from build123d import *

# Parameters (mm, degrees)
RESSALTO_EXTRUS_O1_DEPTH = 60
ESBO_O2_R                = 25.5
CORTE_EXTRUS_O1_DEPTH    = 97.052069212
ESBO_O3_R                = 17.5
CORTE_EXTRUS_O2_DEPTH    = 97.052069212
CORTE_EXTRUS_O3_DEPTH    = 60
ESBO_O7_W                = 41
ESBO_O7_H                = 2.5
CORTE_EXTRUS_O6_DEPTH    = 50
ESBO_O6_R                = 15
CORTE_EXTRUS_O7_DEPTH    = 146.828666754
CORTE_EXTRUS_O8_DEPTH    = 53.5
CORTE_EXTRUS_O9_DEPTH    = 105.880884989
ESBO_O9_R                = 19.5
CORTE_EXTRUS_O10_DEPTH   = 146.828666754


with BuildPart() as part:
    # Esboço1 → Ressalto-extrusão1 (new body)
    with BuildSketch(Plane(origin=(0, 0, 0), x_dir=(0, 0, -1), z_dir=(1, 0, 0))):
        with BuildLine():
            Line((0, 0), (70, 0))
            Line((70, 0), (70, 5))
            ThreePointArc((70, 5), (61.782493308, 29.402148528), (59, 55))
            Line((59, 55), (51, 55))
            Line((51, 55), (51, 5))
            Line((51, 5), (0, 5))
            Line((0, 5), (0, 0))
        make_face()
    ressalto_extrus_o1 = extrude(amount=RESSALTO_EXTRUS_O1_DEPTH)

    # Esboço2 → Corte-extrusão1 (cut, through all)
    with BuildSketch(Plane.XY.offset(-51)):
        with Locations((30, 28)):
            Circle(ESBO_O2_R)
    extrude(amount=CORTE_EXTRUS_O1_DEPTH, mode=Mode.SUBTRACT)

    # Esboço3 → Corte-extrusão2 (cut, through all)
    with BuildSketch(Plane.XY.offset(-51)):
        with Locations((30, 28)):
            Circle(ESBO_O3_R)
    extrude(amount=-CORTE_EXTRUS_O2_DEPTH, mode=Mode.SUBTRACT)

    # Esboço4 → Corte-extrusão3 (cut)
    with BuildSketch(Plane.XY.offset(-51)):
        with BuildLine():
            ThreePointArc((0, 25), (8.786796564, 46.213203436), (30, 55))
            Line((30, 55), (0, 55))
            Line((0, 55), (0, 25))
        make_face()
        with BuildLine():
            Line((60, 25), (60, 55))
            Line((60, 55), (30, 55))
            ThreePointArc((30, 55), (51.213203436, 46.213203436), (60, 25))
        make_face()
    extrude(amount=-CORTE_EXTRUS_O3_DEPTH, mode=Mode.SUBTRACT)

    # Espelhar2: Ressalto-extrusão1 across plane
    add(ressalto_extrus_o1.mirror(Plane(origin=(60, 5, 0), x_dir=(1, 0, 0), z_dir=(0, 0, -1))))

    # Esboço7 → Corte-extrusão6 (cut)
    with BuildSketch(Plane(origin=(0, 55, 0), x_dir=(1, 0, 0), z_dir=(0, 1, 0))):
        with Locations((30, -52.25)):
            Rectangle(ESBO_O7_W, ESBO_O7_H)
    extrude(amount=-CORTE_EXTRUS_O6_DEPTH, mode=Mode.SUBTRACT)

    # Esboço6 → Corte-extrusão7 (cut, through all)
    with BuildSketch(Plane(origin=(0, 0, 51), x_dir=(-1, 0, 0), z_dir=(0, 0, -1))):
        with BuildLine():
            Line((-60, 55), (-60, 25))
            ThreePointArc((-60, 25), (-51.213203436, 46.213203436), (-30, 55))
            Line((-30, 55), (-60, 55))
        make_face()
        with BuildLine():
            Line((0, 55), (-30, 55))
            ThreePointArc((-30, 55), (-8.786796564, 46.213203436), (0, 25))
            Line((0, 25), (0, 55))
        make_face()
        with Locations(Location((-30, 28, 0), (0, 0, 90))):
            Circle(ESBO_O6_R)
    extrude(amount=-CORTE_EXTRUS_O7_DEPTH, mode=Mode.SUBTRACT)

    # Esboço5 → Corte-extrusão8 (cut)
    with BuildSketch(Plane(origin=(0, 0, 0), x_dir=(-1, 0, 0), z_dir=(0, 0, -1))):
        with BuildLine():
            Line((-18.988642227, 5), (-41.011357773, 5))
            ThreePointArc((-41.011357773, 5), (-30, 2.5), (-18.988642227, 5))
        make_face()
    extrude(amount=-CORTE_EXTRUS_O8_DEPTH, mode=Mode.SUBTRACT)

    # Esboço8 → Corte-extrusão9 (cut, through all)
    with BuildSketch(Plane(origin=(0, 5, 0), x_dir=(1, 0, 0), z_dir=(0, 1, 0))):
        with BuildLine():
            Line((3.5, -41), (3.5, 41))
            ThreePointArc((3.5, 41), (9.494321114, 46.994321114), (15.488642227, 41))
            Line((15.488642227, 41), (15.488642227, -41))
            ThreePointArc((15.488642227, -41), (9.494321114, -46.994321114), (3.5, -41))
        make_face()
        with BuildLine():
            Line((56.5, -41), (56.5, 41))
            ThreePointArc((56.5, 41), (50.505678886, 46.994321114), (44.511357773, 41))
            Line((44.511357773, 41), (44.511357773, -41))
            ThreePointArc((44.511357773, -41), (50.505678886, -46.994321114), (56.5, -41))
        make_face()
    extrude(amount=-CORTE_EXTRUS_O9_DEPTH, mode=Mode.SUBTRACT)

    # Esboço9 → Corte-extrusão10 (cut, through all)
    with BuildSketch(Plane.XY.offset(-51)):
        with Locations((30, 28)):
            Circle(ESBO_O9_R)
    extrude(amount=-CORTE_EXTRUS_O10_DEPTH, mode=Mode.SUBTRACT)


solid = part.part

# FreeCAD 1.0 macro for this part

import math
import FreeCAD as App
import Part
import Sketcher

V = App.Vector
Q = App.Units.Quantity

doc = App.newDocument("Part")
body = doc.addObject("PartDesign::Body", "Body")

# Sketch on YZ plane
sketch1 = doc.addObject("Sketcher::SketchObject", "Sketch")
body.addObject(sketch1)
sketch1.AttachmentSupport = (doc.YZ_Plane, [""])
sketch1.MapMode = "FlatFace"
sketch1.addGeometry(Part.LineSegment(V(0, 0, 0), V(0, -70, 0)), False)
sketch1.addGeometry(Part.LineSegment(V(0, -70, 0), V(5, -70, 0)), False)
sketch1.addGeometry(Part.ArcOfCircle(Part.Circle(V(55, -178.136364, 0), V(0, 0, 1), 119.136364), math.radians(90), math.radians(114.814837)), False)
sketch1.addGeometry(Part.LineSegment(V(55, -59, 0), V(55, -51, 0)), False)
sketch1.addGeometry(Part.LineSegment(V(55, -51, 0), V(5, -51, 0)), False)
sketch1.addGeometry(Part.LineSegment(V(5, -51, 0), V(5, 0, 0)), False)
sketch1.addGeometry(Part.LineSegment(V(5, 0, 0), V(0, 0, 0)), False)
sketch1.addConstraint(Sketcher.Constraint("Coincident", 0, 2, 1, 1))
sketch1.addConstraint(Sketcher.Constraint("Coincident", 1, 2, 2, 2))
sketch1.addConstraint(Sketcher.Constraint("Coincident", 2, 1, 3, 1))
sketch1.addConstraint(Sketcher.Constraint("Coincident", 3, 2, 4, 1))
sketch1.addConstraint(Sketcher.Constraint("Coincident", 4, 2, 5, 1))
sketch1.addConstraint(Sketcher.Constraint("Coincident", 5, 2, 6, 1))
sketch1.addConstraint(Sketcher.Constraint("Coincident", 6, 2, 0, 1))
sketch1.addConstraint(Sketcher.Constraint("Vertical", 0))
sketch1.addConstraint(Sketcher.Constraint("Horizontal", 1))
sketch1.addConstraint(Sketcher.Constraint("Vertical", 3))
sketch1.addConstraint(Sketcher.Constraint("Horizontal", 4))
sketch1.addConstraint(Sketcher.Constraint("Vertical", 5))
sketch1.addConstraint(Sketcher.Constraint("Horizontal", 6))
sketch1.addConstraint(Sketcher.Constraint("Coincident", 6, 2, -1, 1))
sketch1.addConstraint(Sketcher.Constraint("Vertical", 1, 2, 4, 2))
sketch1.addConstraint(Sketcher.Constraint("DistanceX", 1, 1, 1, 2, Q("5 mm")))
sketch1.addConstraint(Sketcher.Constraint("DistanceX", 4, 2, 4, 1, Q("50 mm")))
sketch1.addConstraint(Sketcher.Constraint("DistanceY", 0, 2, 0, 1, Q("70 mm")))
sketch1.addConstraint(Sketcher.Constraint("DistanceY", 3, 1, 3, 2, Q("8 mm")))
sketch1.addConstraint(Sketcher.Constraint("DistanceY", 5, 1, 5, 2, Q("51 mm")))
sketch1.addConstraint(Sketcher.Constraint("DistanceX", -1, 1, 2, 3, Q("55 mm")))
pad1 = doc.addObject("PartDesign::Pad", "Pad")
body.addObject(pad1)
pad1.Profile = sketch1
pad1.Length = 60

# Sketch on XY plane
sketch2 = doc.addObject("Sketcher::SketchObject", "Sketch001")
body.addObject(sketch2)
sketch2.AttachmentSupport = (doc.XY_Plane, [""])
sketch2.MapMode = "FlatFace"
sketch2.AttachmentOffset = App.Placement(V(0, 0, -51), App.Rotation())
sketch2.addGeometry(Part.Circle(V(30, 28, 0), V(0, 0, 1), 25.5), False)
sketch2.addConstraint(Sketcher.Constraint("Diameter", 0, Q("51 mm")))
sketch2.addConstraint(Sketcher.Constraint("DistanceX", -1, 1, 0, 3, Q("30 mm")))
sketch2.addConstraint(Sketcher.Constraint("DistanceY", -1, 1, 0, 3, Q("28 mm")))
pocket1 = doc.addObject("PartDesign::Pocket", "Pocket")
body.addObject(pocket1)
pocket1.Profile = sketch2
pocket1.Type = "ThroughAll"
pocket1.Reversed = True

# Sketch on XY plane
sketch3 = doc.addObject("Sketcher::SketchObject", "Sketch002")
body.addObject(sketch3)
sketch3.AttachmentSupport = (doc.XY_Plane, [""])
sketch3.MapMode = "FlatFace"
sketch3.AttachmentOffset = App.Placement(V(0, 0, -51), App.Rotation())
sketch3.addGeometry(Part.Circle(V(30, 28, 0), V(0, 0, 1), 17.5), False)
sketch3.addConstraint(Sketcher.Constraint("Diameter", 0, Q("35 mm")))
sketch3.addConstraint(Sketcher.Constraint("DistanceX", -1, 1, 0, 3, Q("30 mm")))
sketch3.addConstraint(Sketcher.Constraint("DistanceY", -1, 1, 0, 3, Q("28 mm")))
pocket2 = doc.addObject("PartDesign::Pocket", "Pocket001")
body.addObject(pocket2)
pocket2.Profile = sketch3
pocket2.Type = "ThroughAll"

# Sketch on XY plane
sketch4 = doc.addObject("Sketcher::SketchObject", "Sketch003")
body.addObject(sketch4)
sketch4.AttachmentSupport = (doc.XY_Plane, [""])
sketch4.MapMode = "FlatFace"
sketch4.AttachmentOffset = App.Placement(V(0, 0, -51), App.Rotation())
sketch4.addGeometry(Part.ArcOfCircle(Part.Circle(V(30, 25, 0), V(0, 0, 1), 30), math.radians(90), math.radians(180)), False)
sketch4.addGeometry(Part.LineSegment(V(30, 55, 0), V(0, 55, 0)), False)
sketch4.addGeometry(Part.LineSegment(V(0, 55, 0), V(0, 25, 0)), False)
sketch4.addGeometry(Part.LineSegment(V(60, 25, 0), V(60, 55, 0)), False)
sketch4.addGeometry(Part.LineSegment(V(60, 55, 0), V(30, 55, 0)), False)
sketch4.addGeometry(Part.ArcOfCircle(Part.Circle(V(30, 25, 0), V(0, 0, 1), 30), math.radians(0), math.radians(90)), False)
sketch4.addConstraint(Sketcher.Constraint("Tangent", 0, 1, 1, 1))
sketch4.addConstraint(Sketcher.Constraint("Coincident", 1, 2, 2, 1))
sketch4.addConstraint(Sketcher.Constraint("Tangent", 2, 2, 0, 2))
sketch4.addConstraint(Sketcher.Constraint("Coincident", 3, 2, 4, 1))
sketch4.addConstraint(Sketcher.Constraint("Tangent", 4, 2, 5, 2))
sketch4.addConstraint(Sketcher.Constraint("Tangent", 5, 1, 3, 1))
sketch4.addConstraint(Sketcher.Constraint("Horizontal", 1))
sketch4.addConstraint(Sketcher.Constraint("Vertical", 2))
sketch4.addConstraint(Sketcher.Constraint("Vertical", 3))
sketch4.addConstraint(Sketcher.Constraint("Horizontal", 4))
sketch4.addConstraint(Sketcher.Constraint("Coincident", 5, 3, 0, 3))
sketch4.addConstraint(Sketcher.Constraint("Equal", 0, 5))
sketch4.addConstraint(Sketcher.Constraint("PointOnObject", 1, 2, -2))
sketch4.addConstraint(Sketcher.Constraint("Radius", 0, Q("30 mm")))
sketch4.addConstraint(Sketcher.Constraint("DistanceY", -1, 1, 0, 3, Q("25 mm")))
pocket3 = doc.addObject("PartDesign::Pocket", "Pocket002")
body.addObject(pocket3)
pocket3.Profile = sketch4
pocket3.Length = 60
doc.recompute()

mirrored = doc.addObject("PartDesign::Mirrored", "Mirrored")
body.addObject(mirrored)
mirrored.Originals = [pad1]
mirrored.MirrorPlane = (doc.XY_Plane, [""])
body.Tip = mirrored

# Sketch on XZ plane
sketch5 = doc.addObject("Sketcher::SketchObject", "Sketch004")
body.addObject(sketch5)
sketch5.AttachmentSupport = (doc.XZ_Plane, [""])
sketch5.MapMode = "FlatFace"
sketch5.AttachmentOffset = App.Placement(V(0, 0, -55), App.Rotation())
sketch5.addGeometry(Part.LineSegment(V(9.5, 51, 0), V(9.5, 53.5, 0)), False)
sketch5.addGeometry(Part.LineSegment(V(9.5, 53.5, 0), V(50.5, 53.5, 0)), False)
sketch5.addGeometry(Part.LineSegment(V(50.5, 53.5, 0), V(50.5, 51, 0)), False)
sketch5.addGeometry(Part.LineSegment(V(50.5, 51, 0), V(9.5, 51, 0)), False)
sketch5.addConstraint(Sketcher.Constraint("Coincident", 0, 2, 1, 1))
sketch5.addConstraint(Sketcher.Constraint("Coincident", 1, 2, 2, 1))
sketch5.addConstraint(Sketcher.Constraint("Coincident", 2, 2, 3, 1))
sketch5.addConstraint(Sketcher.Constraint("Coincident", 3, 2, 0, 1))
sketch5.addConstraint(Sketcher.Constraint("Vertical", 0))
sketch5.addConstraint(Sketcher.Constraint("Horizontal", 1))
sketch5.addConstraint(Sketcher.Constraint("Vertical", 2))
sketch5.addConstraint(Sketcher.Constraint("Horizontal", 3))
sketch5.addConstraint(Sketcher.Constraint("DistanceX", 1, 1, 1, 2, Q("41 mm")))
sketch5.addConstraint(Sketcher.Constraint("DistanceY", 0, 1, 0, 2, Q("2.5 mm")))
sketch5.addConstraint(Sketcher.Constraint("DistanceY", -1, 1, 2, 2, Q("51 mm")))
sketch5.addConstraint(Sketcher.Constraint("DistanceX", -1, 1, 0, 2, Q("9.5 mm")))
pocket4 = doc.addObject("PartDesign::Pocket", "Pocket003")
body.addObject(pocket4)
pocket4.Profile = sketch5
pocket4.Length = 50
pocket4.Reversed = True

# Sketch on XY plane
sketch6 = doc.addObject("Sketcher::SketchObject", "Sketch005")
body.addObject(sketch6)
sketch6.AttachmentSupport = (doc.XY_Plane, [""])
sketch6.MapMode = "FlatFace"
sketch6.AttachmentOffset = App.Placement(V(0, 0, 51), App.Rotation())
sketch6.addGeometry(Part.LineSegment(V(60, 55, 0), V(60, 25, 0)), False)
sketch6.addGeometry(Part.ArcOfCircle(Part.Circle(V(30, 25, 0), V(0, 0, 1), 30), math.radians(0), math.radians(90)), False)
sketch6.addGeometry(Part.LineSegment(V(30, 55, 0), V(60, 55, 0)), False)
sketch6.addGeometry(Part.LineSegment(V(0, 55, 0), V(30, 55, 0)), False)
sketch6.addGeometry(Part.ArcOfCircle(Part.Circle(V(30, 25, 0), V(0, 0, 1), 30), math.radians(90), math.radians(180)), False)
sketch6.addGeometry(Part.LineSegment(V(0, 25, 0), V(0, 55, 0)), False)
sketch6.addGeometry(Part.Circle(V(30, 28, 0), V(0, 0, 1), 15), False)
sketch6.addConstraint(Sketcher.Constraint("Tangent", 0, 2, 1, 1))
sketch6.addConstraint(Sketcher.Constraint("Tangent", 1, 2, 2, 1))
sketch6.addConstraint(Sketcher.Constraint("Coincident", 2, 2, 0, 1))
sketch6.addConstraint(Sketcher.Constraint("Tangent", 3, 2, 4, 1))
sketch6.addConstraint(Sketcher.Constraint("Tangent", 4, 2, 5, 1))
sketch6.addConstraint(Sketcher.Constraint("Coincident", 5, 2, 3, 1))
sketch6.addConstraint(Sketcher.Constraint("Vertical", 0))
sketch6.addConstraint(Sketcher.Constraint("Horizontal", 2))
sketch6.addConstraint(Sketcher.Constraint("Horizontal", 3))
sketch6.addConstraint(Sketcher.Constraint("Vertical", 5))
sketch6.addConstraint(Sketcher.Constraint("Coincident", 4, 3, 1, 3))
sketch6.addConstraint(Sketcher.Constraint("Equal", 1, 4))
sketch6.addConstraint(Sketcher.Constraint("PointOnObject", 4, 2, -2))
sketch6.addConstraint(Sketcher.Constraint("Vertical", 4, 3, 6, 3))
sketch6.addConstraint(Sketcher.Constraint("Diameter", 6, Q("30 mm")))
sketch6.addConstraint(Sketcher.Constraint("Radius", 1, Q("30 mm")))
sketch6.addConstraint(Sketcher.Constraint("DistanceY", -1, 1, 1, 3, Q("25 mm")))
sketch6.addConstraint(Sketcher.Constraint("DistanceY", -1, 1, 6, 3, Q("28 mm")))
pocket5 = doc.addObject("PartDesign::Pocket", "Pocket004")
body.addObject(pocket5)
pocket5.Profile = sketch6
pocket5.Type = "ThroughAll"
pocket5.Reversed = True

# Sketch on XY plane
sketch7 = doc.addObject("Sketcher::SketchObject", "Sketch006")
body.addObject(sketch7)
sketch7.AttachmentSupport = (doc.XY_Plane, [""])
sketch7.MapMode = "FlatFace"
sketch7.addGeometry(Part.LineSegment(V(18.988642, 5, 0), V(41.011358, 5, 0)), False)
sketch7.addGeometry(Part.ArcOfCircle(Part.Circle(V(30, 28, 0), V(0, 0, 1), 25.5), math.radians(-115.582987), math.radians(-64.417013)), False)
sketch7.addConstraint(Sketcher.Constraint("Coincident", 0, 1, 1, 1))
sketch7.addConstraint(Sketcher.Constraint("Coincident", 1, 2, 0, 2))
sketch7.addConstraint(Sketcher.Constraint("Horizontal", 0))
sketch7.addConstraint(Sketcher.Constraint("Radius", 1, Q("25.5 mm")))
sketch7.addConstraint(Sketcher.Constraint("DistanceX", -1, 1, 1, 3, Q("30 mm")))
sketch7.addConstraint(Sketcher.Constraint("DistanceY", -1, 1, 1, 3, Q("28 mm")))
sketch7.addConstraint(Sketcher.Constraint("DistanceY", -1, 1, 0, 1, Q("5 mm")))
pocket6 = doc.addObject("PartDesign::Pocket", "Pocket005")
body.addObject(pocket6)
pocket6.Profile = sketch7
pocket6.Length = 53.5
pocket6.Reversed = True

# Sketch on XZ plane
sketch8 = doc.addObject("Sketcher::SketchObject", "Sketch007")
body.addObject(sketch8)
sketch8.AttachmentSupport = (doc.XZ_Plane, [""])
sketch8.MapMode = "FlatFace"
sketch8.AttachmentOffset = App.Placement(V(0, 0, -5), App.Rotation())
sketch8.addGeometry(Part.LineSegment(V(3.5, -41, 0), V(3.5, 41, 0)), False)
sketch8.addGeometry(Part.ArcOfCircle(Part.Circle(V(9.494321, 41, 0), V(0, 0, 1), 5.994321), math.radians(0), math.radians(180)), False)
sketch8.addGeometry(Part.LineSegment(V(15.488642, 41, 0), V(15.488642, -41, 0)), False)
sketch8.addGeometry(Part.ArcOfCircle(Part.Circle(V(9.494321, -41, 0), V(0, 0, 1), 5.994321), math.radians(180), math.radians(360)), False)
sketch8.addGeometry(Part.LineSegment(V(56.5, 41, 0), V(56.5, -41, 0)), False)
sketch8.addGeometry(Part.ArcOfCircle(Part.Circle(V(50.505679, -41, 0), V(0, 0, 1), 5.994321), math.radians(180), math.radians(360)), False)
sketch8.addGeometry(Part.LineSegment(V(44.511358, -41, 0), V(44.511358, 41, 0)), False)
sketch8.addGeometry(Part.ArcOfCircle(Part.Circle(V(50.505679, 41, 0), V(0, 0, 1), 5.994321), math.radians(0), math.radians(180)), False)
sketch8.addConstraint(Sketcher.Constraint("Tangent", 0, 2, 1, 2))
sketch8.addConstraint(Sketcher.Constraint("Tangent", 1, 1, 2, 1))
sketch8.addConstraint(Sketcher.Constraint("Tangent", 2, 2, 3, 2))
sketch8.addConstraint(Sketcher.Constraint("Tangent", 3, 1, 0, 1))
sketch8.addConstraint(Sketcher.Constraint("Tangent", 4, 2, 5, 2))
sketch8.addConstraint(Sketcher.Constraint("Tangent", 5, 1, 6, 1))
sketch8.addConstraint(Sketcher.Constraint("Tangent", 6, 2, 7, 2))
sketch8.addConstraint(Sketcher.Constraint("Tangent", 7, 1, 4, 1))
sketch8.addConstraint(Sketcher.Constraint("Vertical", 0))
sketch8.addConstraint(Sketcher.Constraint("Vertical", 2))
sketch8.addConstraint(Sketcher.Constraint("Vertical", 4))
sketch8.addConstraint(Sketcher.Constraint("Vertical", 6))
sketch8.addConstraint(Sketcher.Constraint("Equal", 3, 5))
sketch8.addConstraint(Sketcher.Constraint("Horizontal", 3, 3, 5, 3))
sketch8.addConstraint(Sketcher.Constraint("Horizontal", 1, 3, 7, 3))
sketch8.addConstraint(Sketcher.Constraint("DistanceY", 0, 1, 0, 2, Q("82 mm")))
sketch8.addConstraint(Sketcher.Constraint("DistanceY", -1, 1, 1, 3, Q("41 mm")))
sketch8.addConstraint(Sketcher.Constraint("DistanceX", 3, 1, 4, 2, Q("53 mm")))
sketch8.addConstraint(Sketcher.Constraint("DistanceX", -1, 1, 0, 2, Q("3.5 mm")))
sketch8.addConstraint(Sketcher.Constraint("Radius", 1, Q("5.994321 mm")))
pocket7 = doc.addObject("PartDesign::Pocket", "Pocket006")
body.addObject(pocket7)
pocket7.Profile = sketch8
pocket7.Type = "ThroughAll"
pocket7.Reversed = True

# Sketch on XY plane
sketch9 = doc.addObject("Sketcher::SketchObject", "Sketch008")
body.addObject(sketch9)
sketch9.AttachmentSupport = (doc.XY_Plane, [""])
sketch9.MapMode = "FlatFace"
sketch9.AttachmentOffset = App.Placement(V(0, 0, -51), App.Rotation())
sketch9.addGeometry(Part.Circle(V(30, 28, 0), V(0, 0, 1), 19.5), False)
sketch9.addConstraint(Sketcher.Constraint("Diameter", 0, Q("39 mm")))
sketch9.addConstraint(Sketcher.Constraint("DistanceX", -1, 1, 0, 3, Q("30 mm")))
sketch9.addConstraint(Sketcher.Constraint("DistanceY", -1, 1, 0, 3, Q("28 mm")))
pocket8 = doc.addObject("PartDesign::Pocket", "Pocket007")
body.addObject(pocket8)
pocket8.Profile = sketch9
pocket8.Type = "ThroughAll"

doc.recompute()
